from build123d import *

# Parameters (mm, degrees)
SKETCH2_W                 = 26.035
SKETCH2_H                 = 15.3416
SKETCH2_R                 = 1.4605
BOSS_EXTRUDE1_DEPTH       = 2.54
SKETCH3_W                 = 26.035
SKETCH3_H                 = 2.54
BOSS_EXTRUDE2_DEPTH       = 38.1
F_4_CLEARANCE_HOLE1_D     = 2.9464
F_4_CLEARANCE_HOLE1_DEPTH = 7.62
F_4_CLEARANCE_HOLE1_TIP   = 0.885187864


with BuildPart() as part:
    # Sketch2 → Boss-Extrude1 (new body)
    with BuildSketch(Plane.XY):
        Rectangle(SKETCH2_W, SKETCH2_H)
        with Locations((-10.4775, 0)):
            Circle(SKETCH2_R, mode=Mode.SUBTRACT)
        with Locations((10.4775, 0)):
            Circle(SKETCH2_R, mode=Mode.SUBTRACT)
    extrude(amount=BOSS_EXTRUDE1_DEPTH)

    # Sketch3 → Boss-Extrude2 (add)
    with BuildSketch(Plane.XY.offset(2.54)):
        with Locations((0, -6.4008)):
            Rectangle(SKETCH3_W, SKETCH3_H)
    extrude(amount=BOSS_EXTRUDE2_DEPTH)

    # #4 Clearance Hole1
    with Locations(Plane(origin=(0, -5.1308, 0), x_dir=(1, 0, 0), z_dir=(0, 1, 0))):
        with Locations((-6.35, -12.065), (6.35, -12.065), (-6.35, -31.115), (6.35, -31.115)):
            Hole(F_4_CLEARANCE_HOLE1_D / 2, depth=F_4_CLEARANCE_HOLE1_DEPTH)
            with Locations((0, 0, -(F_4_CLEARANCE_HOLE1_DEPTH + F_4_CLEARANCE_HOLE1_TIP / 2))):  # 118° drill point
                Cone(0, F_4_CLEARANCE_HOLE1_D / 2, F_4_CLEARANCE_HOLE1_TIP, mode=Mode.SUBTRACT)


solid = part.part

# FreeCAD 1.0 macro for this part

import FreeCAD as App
import Part
import Sketcher
Q = App.Units.Quantity


def add_polygon(sketch, points):
    """Adds a closed chain of lines whose ends are joined by coincident constraints."""
    first, n = sketch.GeometryCount, len(points)
    for a, b in zip(points, points[1:] + points[:1]):
        sketch.addGeometry(Part.LineSegment(App.Vector(*a, 0), App.Vector(*b, 0)), False)
    for i in range(n):
        sketch.addConstraint(Sketcher.Constraint("Coincident", first + i, 2, first + (i + 1) % n, 1))

doc = App.newDocument("Part")
body = doc.addObject("PartDesign::Body", "Body")

sketch1 = body.newObject("Sketcher::SketchObject", "Sketch")
sketch1.AttachmentSupport = (doc.getObject("XY_Plane"), [""])
sketch1.MapMode = "FlatFace"
add_polygon(sketch1, [(-13, 7.7), (-13, -7.7), (13, -7.7), (13, 7.7)])
sketch1.addGeometry(Part.Circle(App.Vector(-10.5, 0, 0), App.Vector(0, 0, 1), 1.5), False)
sketch1.addGeometry(Part.Circle(App.Vector(10.5, 0, 0), App.Vector(0, 0, 1), 1.5), False)
sketch1.addConstraint([
    Sketcher.Constraint("Vertical", 0),
    Sketcher.Constraint("Horizontal", 1),
    Sketcher.Constraint("Vertical", 2),
    Sketcher.Constraint("Horizontal", 3),
    Sketcher.Constraint("Equal", 4, 5),
    Sketcher.Constraint("Symmetric", 4, 3, 5, 3, -1, 1),
    Sketcher.Constraint("Symmetric", 0, 2, 2, 2, -1, 1),
    Sketcher.Constraint("PointOnObject", 4, 3, -1),
    Sketcher.Constraint("Diameter", 4, Q("0.115 in")),
    Sketcher.Constraint("DistanceX", 0, 2, 4, 3, Q("0.1 in")),
    Sketcher.Constraint("DistanceX", 1, 1, 1, 2, Q("1.025 in")),
    Sketcher.Constraint("DistanceY", 0, 2, 0, 1, Q("0.604 in")),
])
pad1 = body.newObject("PartDesign::Pad", "Pad")
pad1.Profile = sketch1
pad1.Length = Q("0.1 in")

sketch2 = body.newObject("Sketcher::SketchObject", "Sketch001")
sketch2.AttachmentSupport = (doc.getObject("XY_Plane"), [""])
sketch2.MapMode = "FlatFace"
sketch2.AttachmentOffset = App.Placement(App.Vector(0, 0, 0.1 * 25.4), App.Rotation())
add_polygon(sketch2, [(-13, -5.1), (-13, -7.7), (13, -7.7), (13, -5.1)])
sketch2.addConstraint([
    Sketcher.Constraint("Vertical", 0),
    Sketcher.Constraint("Horizontal", 1),
    Sketcher.Constraint("Vertical", 2),
    Sketcher.Constraint("Horizontal", 3),
    Sketcher.Constraint("DistanceY", 0, 2, 0, 1, Q("0.1 in")),
    Sketcher.Constraint("DistanceX", 1, 1, 1, 2, Q("1.025 in")),
    Sketcher.Constraint("DistanceY", 0, 2, -1, 1, Q("0.302 in")),
    Sketcher.Constraint("DistanceX", 0, 2, -1, 1, Q("0.5125 in")),
])
pad2 = body.newObject("PartDesign::Pad", "Pad001")
pad2.Profile = sketch2
pad2.Length = Q("1.5 in")

sketch3 = body.newObject("Sketcher::SketchObject", "Sketch002")
sketch3.AttachmentSupport = (doc.getObject("XZ_Plane"), [""])
sketch3.MapMode = "FlatFace"
sketch3.AttachmentOffset = App.Placement(App.Vector(0, 0, 0.202 * 25.4), App.Rotation())
sketch3.addGeometry([
    Part.Circle(App.Vector(-6.3, 12.1, 0), App.Vector(0, 0, 1), 1.5),
    Part.Circle(App.Vector(6.3, 12.1, 0), App.Vector(0, 0, 1), 1.5),
    Part.Circle(App.Vector(-6.3, 31.1, 0), App.Vector(0, 0, 1), 1.5),
    Part.Circle(App.Vector(6.3, 31.1, 0), App.Vector(0, 0, 1), 1.5),
], False)
sketch3.addConstraint([
    Sketcher.Constraint("Equal", 0, 1),
    Sketcher.Constraint("Equal", 1, 2),
    Sketcher.Constraint("Equal", 2, 3),
    Sketcher.Constraint("Symmetric", 0, 3, 1, 3, -2),
    Sketcher.Constraint("Symmetric", 2, 3, 3, 3, -2),
    Sketcher.Constraint("Vertical", 0, 3, 2, 3),
    Sketcher.Constraint("Diameter", 0, Q("0.116 in")),
    Sketcher.Constraint("DistanceX", 0, 3, 1, 3, Q("0.5 in")),
    Sketcher.Constraint("DistanceY", 0, 3, 2, 3, Q("0.75 in")),
    Sketcher.Constraint("DistanceY", -1, 1, 0, 3, Q("0.475 in")),
])
doc.recompute()
hole = body.newObject("PartDesign::Hole", "Hole")
hole.Profile = sketch3
hole.ThreadType = "None"
hole.Diameter = Q("0.116 in")
hole.DepthType = "Dimension"
hole.Depth = Q("0.3 in")
hole.DrillPoint = "Angled"
hole.DrillPointAngle = 118
hole.Reversed = True

doc.recompute()
